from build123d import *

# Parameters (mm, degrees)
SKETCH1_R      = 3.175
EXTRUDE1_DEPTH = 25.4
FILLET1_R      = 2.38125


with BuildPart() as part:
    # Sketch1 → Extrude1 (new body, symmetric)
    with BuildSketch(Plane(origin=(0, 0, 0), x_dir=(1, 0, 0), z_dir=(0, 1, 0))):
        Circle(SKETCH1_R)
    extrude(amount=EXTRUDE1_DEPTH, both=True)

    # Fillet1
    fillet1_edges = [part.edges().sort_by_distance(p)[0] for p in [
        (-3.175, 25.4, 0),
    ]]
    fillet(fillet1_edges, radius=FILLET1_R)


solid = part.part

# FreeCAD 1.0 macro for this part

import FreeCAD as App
import Part
import Sketcher
Q = App.Units.Quantity


def edges_at(feature, points):
    """Names of the edges that pass closest to the given points."""
    edges = feature.Shape.Edges
    near = lambda p: min(range(len(edges)), key=lambda i: edges[i].distToShape(Part.Vertex(*p))[0])
    return sorted({f"Edge{near(p) + 1}" for p in points})

doc = App.newDocument("Part")
body = doc.addObject("PartDesign::Body", "Body")

# Sketch on XZ plane
sketch1 = body.newObject("Sketcher::SketchObject", "Sketch")
sketch1.AttachmentSupport = (doc.getObject("XZ_Plane"), [""])
sketch1.MapMode = "FlatFace"
sketch1.addGeometry(Part.Circle(App.Vector(0, 0, 0), App.Vector(0, 0, 1), 3.2), False)
sketch1.addConstraint([
    Sketcher.Constraint("Coincident", 0, 3, -1, 1),
    Sketcher.Constraint("Diameter", 0, Q("0.25 in")),
])
pad1 = body.newObject("PartDesign::Pad", "Pad")
pad1.Profile = sketch1
pad1.Length = Q("2 in")
pad1.Midplane = True
doc.recompute()

fillet = body.newObject("PartDesign::Fillet", "Fillet")
fillet.Base = (pad1, edges_at(pad1, [(-3.175, 25.4, 0)]))
fillet.Radius = Q("0.09375 in")

doc.recompute()
